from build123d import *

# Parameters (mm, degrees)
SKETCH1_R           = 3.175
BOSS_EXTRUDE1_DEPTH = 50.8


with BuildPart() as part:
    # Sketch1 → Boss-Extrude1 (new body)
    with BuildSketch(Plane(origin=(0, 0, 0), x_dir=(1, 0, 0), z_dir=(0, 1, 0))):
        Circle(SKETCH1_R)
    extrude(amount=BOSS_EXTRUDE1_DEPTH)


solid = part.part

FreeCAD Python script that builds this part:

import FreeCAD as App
import Part
import Sketcher
from FreeCAD import Vector
Q = App.Units.Quantity

doc = App.newDocument("Part")
params = doc.addObject("Spreadsheet::Sheet", "Params")
for row, (alias, value) in enumerate([
    ("sketch1_diameter", "0.25 in"),
    ("pad1_length", "2 in"),
], start=1):
    params.set(f"A{row}", alias)
    params.set(f"B{row}", "=" + value)
    params.setAlias(f"B{row}", alias)

body = doc.addObject("PartDesign::Body", "Body")

# Sketch on XZ plane
sketch1 = doc.addObject("Sketcher::SketchObject", "Sketch")
body.addObject(sketch1)
sketch1.AttachmentSupport = (doc.XZ_Plane, [""])
sketch1.MapMode = "FlatFace"
sketch1.addGeometry(Part.Circle(Vector(0, 0, 0), Vector(0, 0, 1), 3.175), False)
sketch1.addConstraint(Sketcher.Constraint("Coincident", 0, 3, -1, 1))
sketch1.addConstraint(Sketcher.Constraint("Diameter", 0, Q("0.25 in")))
sketch1.setExpression("Constraints[1]", "Params.sketch1_diameter")
pad1 = doc.addObject("PartDesign::Pad", "Pad")
body.addObject(pad1)
pad1.Profile = sketch1
pad1.setExpression("Length", "Params.pad1_length")
pad1.Reversed = True

doc.recompute()
